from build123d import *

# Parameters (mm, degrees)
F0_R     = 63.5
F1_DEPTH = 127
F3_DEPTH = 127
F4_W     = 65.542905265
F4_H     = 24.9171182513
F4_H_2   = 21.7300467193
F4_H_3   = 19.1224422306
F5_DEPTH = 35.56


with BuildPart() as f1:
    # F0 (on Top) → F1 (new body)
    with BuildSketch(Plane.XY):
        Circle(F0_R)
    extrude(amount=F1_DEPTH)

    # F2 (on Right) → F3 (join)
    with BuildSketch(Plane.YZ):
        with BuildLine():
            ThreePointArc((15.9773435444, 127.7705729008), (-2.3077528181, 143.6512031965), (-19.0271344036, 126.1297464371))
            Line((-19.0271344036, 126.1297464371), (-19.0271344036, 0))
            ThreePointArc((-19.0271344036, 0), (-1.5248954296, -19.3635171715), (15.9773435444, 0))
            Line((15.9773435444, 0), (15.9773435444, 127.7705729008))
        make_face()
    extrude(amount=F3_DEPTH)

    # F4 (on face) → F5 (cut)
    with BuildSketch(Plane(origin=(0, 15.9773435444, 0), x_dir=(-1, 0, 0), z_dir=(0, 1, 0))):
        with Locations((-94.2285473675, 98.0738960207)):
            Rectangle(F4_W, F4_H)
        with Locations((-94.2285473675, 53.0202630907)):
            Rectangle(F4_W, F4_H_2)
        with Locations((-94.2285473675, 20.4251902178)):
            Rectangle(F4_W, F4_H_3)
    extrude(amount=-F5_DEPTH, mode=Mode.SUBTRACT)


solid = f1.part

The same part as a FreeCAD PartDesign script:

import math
import FreeCAD as App
import Part
import Sketcher

V = App.Vector
Q = App.Units.Quantity

doc = App.newDocument("Part")
body = doc.addObject("PartDesign::Body", "Body")

# Sketch on XY plane
sketch1 = doc.addObject("Sketcher::SketchObject", "Sketch")
body.addObject(sketch1)
sketch1.AttachmentSupport = (doc.XY_Plane, [""])
sketch1.MapMode = "FlatFace"
sketch1.addGeometry(Part.Circle(V(0, 0, 0), V(0, 0, 1), 63.5), False)
sketch1.addConstraint([
    Sketcher.Constraint("Coincident", 0, 3, -1, 1),
    Sketcher.Constraint("Diameter", 0, Q("5 in")),
])
pad1 = doc.addObject("PartDesign::Pad", "Pad")
body.addObject(pad1)
pad1.Profile = sketch1
pad1.Length = Q("5 in")

# Sketch on YZ plane
sketch2 = doc.addObject("Sketcher::SketchObject", "Sketch001")
body.addObject(sketch2)
sketch2.AttachmentSupport = (doc.YZ_Plane, [""])
sketch2.MapMode = "FlatFace"
sketch2.addGeometry([
    Part.ArcOfCircle(Part.Circle(V(-1.486439, 126.129746, 0), V(0, 0, 1), 17.540696), math.radians(5.367523), math.radians(180)),
    Part.LineSegment(V(-19.027134, 126.129746, 0), V(-19.027134, 0, 0)),
    Part.ArcOfCircle(Part.Circle(V(-1.524895, -1.771822, 0), V(0, 0, 1), 17.591695), math.radians(174.21941), math.radians(365.78059)),
    Part.LineSegment(V(15.977344, 0, 0), V(15.977344, 127.770573, 0)),
], False)
sketch2.addConstraint([
    Sketcher.Constraint("Tangent", 0, 2, 1, 1),
    Sketcher.Constraint("Coincident", 1, 2, 2, 1),
    Sketcher.Constraint("Coincident", 2, 2, 3, 1),
    Sketcher.Constraint("Coincident", 3, 2, 0, 1),
    Sketcher.Constraint("Vertical", 1),
    Sketcher.Constraint("Vertical", 3),
    Sketcher.Constraint("PointOnObject", 1, 2, -1),
    Sketcher.Constraint("PointOnObject", 2, 2, -1),
    Sketcher.Constraint("Radius", 0, 17.540696),
    Sketcher.Constraint("Radius", 2, 17.591695),
    Sketcher.Constraint("DistanceY", 1, 2, 1, 1, 126.129746),
    Sketcher.Constraint("DistanceY", 3, 1, 3, 2, 127.770573),
    Sketcher.Constraint("DistanceX", 0, 3, -1, 1, 1.486439),
])
pad2 = doc.addObject("PartDesign::Pad", "Pad001")
body.addObject(pad2)
pad2.Profile = sketch2
pad2.Length = Q("5 in")

# Sketch on XZ plane
sketch3 = doc.addObject("Sketcher::SketchObject", "Sketch002")
body.addObject(sketch3)
sketch3.AttachmentSupport = (doc.XZ_Plane, [""])
sketch3.MapMode = "FlatFace"
sketch3.AttachmentOffset = App.Placement(V(0, 0, -15.977344), App.Rotation())
sketch3.addGeometry([
    Part.LineSegment(V(127, 110.532455, 0), V(127, 85.615337, 0)),  # 0
    Part.LineSegment(V(127, 85.615337, 0), V(61.457095, 85.615337, 0)),  # 1
    Part.LineSegment(V(61.457095, 85.615337, 0), V(61.457095, 110.532455, 0)),  # 2
    Part.LineSegment(V(61.457095, 110.532455, 0), V(127, 110.532455, 0)),  # 3
    Part.LineSegment(V(127, 63.885286, 0), V(127, 42.15524, 0)),  # 4
    Part.LineSegment(V(127, 42.15524, 0), V(61.457095, 42.15524, 0)),  # 5
    Part.LineSegment(V(61.457095, 42.15524, 0), V(61.457095, 63.885286, 0)),  # 6
    Part.LineSegment(V(61.457095, 63.885286, 0), V(127, 63.885286, 0)),  # 7
    Part.LineSegment(V(127, 29.986411, 0), V(127, 10.863969, 0)),  # 8
    Part.LineSegment(V(127, 10.863969, 0), V(61.457095, 10.863969, 0)),  # 9
    Part.LineSegment(V(61.457095, 10.863969, 0), V(61.457095, 29.986411, 0)),  # 10
    Part.LineSegment(V(61.457095, 29.986411, 0), V(127, 29.986411, 0)),  # 11
], False)
sketch3.addConstraint([
    Sketcher.Constraint("Coincident", 0, 2, 1, 1),
    Sketcher.Constraint("Coincident", 1, 2, 2, 1),
    Sketcher.Constraint("Coincident", 2, 2, 3, 1),
    Sketcher.Constraint("Coincident", 3, 2, 0, 1),
    Sketcher.Constraint("Coincident", 4, 2, 5, 1),
    Sketcher.Constraint("Coincident", 5, 2, 6, 1),
    Sketcher.Constraint("Coincident", 6, 2, 7, 1),
    Sketcher.Constraint("Coincident", 7, 2, 4, 1),
    Sketcher.Constraint("Coincident", 8, 2, 9, 1),
    Sketcher.Constraint("Coincident", 9, 2, 10, 1),
    Sketcher.Constraint("Coincident", 10, 2, 11, 1),
    Sketcher.Constraint("Coincident", 11, 2, 8, 1),
    Sketcher.Constraint("Vertical", 0),
    Sketcher.Constraint("Horizontal", 1),
    Sketcher.Constraint("Vertical", 2),
    Sketcher.Constraint("Horizontal", 3),
    Sketcher.Constraint("Vertical", 4),
    Sketcher.Constraint("Horizontal", 5),
    Sketcher.Constraint("Vertical", 6),
    Sketcher.Constraint("Horizontal", 7),
    Sketcher.Constraint("Vertical", 8),
    Sketcher.Constraint("Horizontal", 9),
    Sketcher.Constraint("Vertical", 10),
    Sketcher.Constraint("Horizontal", 11),
    Sketcher.Constraint("Vertical", 3, 2, 4, 2),
    Sketcher.Constraint("Vertical", 2, 2, 5, 2),
    Sketcher.Constraint("Vertical", 7, 2, 8, 2),
    Sketcher.Constraint("Vertical", 6, 2, 9, 2),
    Sketcher.Constraint("DistanceX", -1, 1, 0, 2, Q("5 in")),
    Sketcher.Constraint("DistanceY", 0, 2, 0, 1, 24.917118),
    Sketcher.Constraint("DistanceX", 1, 2, 1, 1, 65.542905),
    Sketcher.Constraint("DistanceY", 4, 2, 4, 1, 21.730047),
    Sketcher.Constraint("DistanceY", 8, 2, 8, 1, 19.122442),
    Sketcher.Constraint("DistanceY", -1, 1, 4, 2, 42.15524),
    Sketcher.Constraint("DistanceY", -1, 1, 8, 2, 10.863969),
    Sketcher.Constraint("DistanceY", 6, 2, 1, 2, 21.73005),
])
pocket1 = doc.addObject("PartDesign::Pocket", "Pocket")
body.addObject(pocket1)
pocket1.Profile = sketch3
pocket1.Length = Q("1.4 in")
pocket1.Reversed = True

doc.recompute()
